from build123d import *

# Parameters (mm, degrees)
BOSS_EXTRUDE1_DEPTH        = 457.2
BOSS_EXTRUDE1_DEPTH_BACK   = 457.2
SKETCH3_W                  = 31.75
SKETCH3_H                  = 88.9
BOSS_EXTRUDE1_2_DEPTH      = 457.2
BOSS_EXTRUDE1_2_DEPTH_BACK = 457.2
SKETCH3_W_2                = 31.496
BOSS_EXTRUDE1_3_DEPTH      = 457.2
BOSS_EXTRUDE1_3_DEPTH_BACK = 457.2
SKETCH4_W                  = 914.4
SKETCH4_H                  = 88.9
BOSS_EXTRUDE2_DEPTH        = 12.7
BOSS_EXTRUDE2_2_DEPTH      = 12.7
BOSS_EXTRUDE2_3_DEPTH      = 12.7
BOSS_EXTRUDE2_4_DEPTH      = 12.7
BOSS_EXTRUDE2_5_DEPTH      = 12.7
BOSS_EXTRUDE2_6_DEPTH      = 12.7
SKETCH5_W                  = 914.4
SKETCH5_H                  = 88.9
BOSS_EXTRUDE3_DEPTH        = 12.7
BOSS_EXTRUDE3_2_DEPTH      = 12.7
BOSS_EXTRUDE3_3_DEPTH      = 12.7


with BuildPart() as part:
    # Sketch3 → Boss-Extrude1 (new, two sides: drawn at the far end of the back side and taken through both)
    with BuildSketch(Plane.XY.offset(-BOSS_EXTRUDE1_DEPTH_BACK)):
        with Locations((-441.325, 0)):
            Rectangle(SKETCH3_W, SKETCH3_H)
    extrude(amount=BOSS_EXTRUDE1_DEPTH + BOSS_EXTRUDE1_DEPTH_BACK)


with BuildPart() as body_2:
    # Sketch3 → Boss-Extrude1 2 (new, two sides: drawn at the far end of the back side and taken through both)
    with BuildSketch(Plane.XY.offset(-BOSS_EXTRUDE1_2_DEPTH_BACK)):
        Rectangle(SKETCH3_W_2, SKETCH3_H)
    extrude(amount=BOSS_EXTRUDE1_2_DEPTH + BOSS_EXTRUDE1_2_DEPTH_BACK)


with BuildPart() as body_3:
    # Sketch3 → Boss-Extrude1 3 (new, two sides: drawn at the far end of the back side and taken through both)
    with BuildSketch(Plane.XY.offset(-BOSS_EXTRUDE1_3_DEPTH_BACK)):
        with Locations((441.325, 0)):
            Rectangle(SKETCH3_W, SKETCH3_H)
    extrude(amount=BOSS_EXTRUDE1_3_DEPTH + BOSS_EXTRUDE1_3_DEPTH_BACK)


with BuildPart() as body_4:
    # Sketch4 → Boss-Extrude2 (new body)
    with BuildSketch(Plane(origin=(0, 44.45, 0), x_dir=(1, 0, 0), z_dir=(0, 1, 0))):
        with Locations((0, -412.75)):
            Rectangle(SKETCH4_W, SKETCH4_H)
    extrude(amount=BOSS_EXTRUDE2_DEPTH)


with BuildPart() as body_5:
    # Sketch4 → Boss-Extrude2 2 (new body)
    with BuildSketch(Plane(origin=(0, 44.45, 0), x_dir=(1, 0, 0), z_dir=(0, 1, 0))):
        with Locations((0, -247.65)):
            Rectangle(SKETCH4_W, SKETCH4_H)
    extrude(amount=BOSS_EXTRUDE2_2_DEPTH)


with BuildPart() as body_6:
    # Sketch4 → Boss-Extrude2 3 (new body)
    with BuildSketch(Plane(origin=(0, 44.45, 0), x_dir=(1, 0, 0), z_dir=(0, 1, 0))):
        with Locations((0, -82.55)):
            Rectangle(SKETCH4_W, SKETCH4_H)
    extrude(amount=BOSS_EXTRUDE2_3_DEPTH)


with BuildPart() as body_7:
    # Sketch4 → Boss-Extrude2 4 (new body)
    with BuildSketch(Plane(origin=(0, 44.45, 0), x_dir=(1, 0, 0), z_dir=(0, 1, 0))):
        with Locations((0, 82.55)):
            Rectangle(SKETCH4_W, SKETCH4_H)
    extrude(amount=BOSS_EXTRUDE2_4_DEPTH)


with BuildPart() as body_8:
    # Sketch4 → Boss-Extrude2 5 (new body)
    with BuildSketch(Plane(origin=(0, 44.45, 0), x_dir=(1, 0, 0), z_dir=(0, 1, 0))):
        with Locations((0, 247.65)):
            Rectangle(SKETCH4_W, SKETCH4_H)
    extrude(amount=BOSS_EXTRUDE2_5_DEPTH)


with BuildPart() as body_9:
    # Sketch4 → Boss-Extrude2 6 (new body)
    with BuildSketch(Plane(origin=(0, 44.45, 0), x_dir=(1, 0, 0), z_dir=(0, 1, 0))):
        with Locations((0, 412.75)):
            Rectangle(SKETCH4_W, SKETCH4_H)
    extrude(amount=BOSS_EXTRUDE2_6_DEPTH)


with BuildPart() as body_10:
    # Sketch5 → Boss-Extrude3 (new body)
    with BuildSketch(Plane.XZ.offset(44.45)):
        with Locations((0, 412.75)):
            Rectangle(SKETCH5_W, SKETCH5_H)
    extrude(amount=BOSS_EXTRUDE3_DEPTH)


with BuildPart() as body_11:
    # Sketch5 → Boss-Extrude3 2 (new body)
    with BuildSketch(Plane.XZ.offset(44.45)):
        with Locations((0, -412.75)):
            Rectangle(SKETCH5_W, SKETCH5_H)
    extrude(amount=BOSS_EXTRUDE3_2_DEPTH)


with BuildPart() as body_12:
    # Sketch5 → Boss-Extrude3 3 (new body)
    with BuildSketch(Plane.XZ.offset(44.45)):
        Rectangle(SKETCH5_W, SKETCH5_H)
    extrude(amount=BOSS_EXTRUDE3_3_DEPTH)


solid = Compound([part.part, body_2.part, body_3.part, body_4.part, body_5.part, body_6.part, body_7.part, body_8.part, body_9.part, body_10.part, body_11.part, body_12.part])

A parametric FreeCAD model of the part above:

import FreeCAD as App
import Part
import Sketcher
from FreeCAD import Vector
Q = App.Units.Quantity


def add_polygon(sketch, points):
    """Adds a closed chain of lines whose ends are joined by coincident constraints."""
    first, n = sketch.GeometryCount, len(points)
    for a, b in zip(points, points[1:] + points[:1]):
        sketch.addGeometry(Part.LineSegment(App.Vector(*a, 0), App.Vector(*b, 0)), False)
    for i in range(n):
        sketch.addConstraint(Sketcher.Constraint("Coincident", first + i, 2, first + (i + 1) % n, 1))

doc = App.newDocument("Part")
body = doc.addObject("PartDesign::Body", "Body")

# Sketch on XY plane
sketch1 = doc.addObject("Sketcher::SketchObject", "Sketch")
body.addObject(sketch1)
sketch1.AttachmentSupport = (doc.XY_Plane, [""])
sketch1.MapMode = "FlatFace"
add_polygon(sketch1, [(-457.2, 44.45), (-457.2, -44.45), (-425.45, -44.45), (-425.45, 44.45)])  # lines 0-3
sketch1.addConstraint([
    Sketcher.Constraint("Vertical", 0),
    Sketcher.Constraint("Horizontal", 1),
    Sketcher.Constraint("Vertical", 2),
    Sketcher.Constraint("Horizontal", 3),
    Sketcher.Constraint("DistanceY", 0, 2, 0, 1, Q("3.5 in")),
    Sketcher.Constraint("DistanceX", 0, 2, -1, 1, Q("18 in")),
    Sketcher.Constraint("DistanceX", 1, 1, 1, 2, Q("1.25 in")),
    Sketcher.Constraint("DistanceY", 0, 2, -1, 1, Q("1.75 in")),
])
pad1 = doc.addObject("PartDesign::Pad", "Pad")
body.addObject(pad1)
pad1.Profile = sketch1
pad1.Type = "TwoLengths"
pad1.Length = Q("18 in")
pad1.Length2 = Q("18 in")
body2 = doc.addObject("PartDesign::Body", "Body001")

# Sketch on XY plane
sketch2 = doc.addObject("Sketcher::SketchObject", "Sketch001")
body2.addObject(sketch2)
sketch2.AttachmentSupport = (doc.getObject("XY_Plane001"), [""])
sketch2.MapMode = "FlatFace"
add_polygon(sketch2, [(-15.748, 44.45), (-15.748, -44.45), (15.748, -44.45), (15.748, 44.45)])  # lines 0-3
sketch2.addConstraint([
    Sketcher.Constraint("Vertical", 0),
    Sketcher.Constraint("Horizontal", 1),
    Sketcher.Constraint("Vertical", 2),
    Sketcher.Constraint("Horizontal", 3),
    Sketcher.Constraint("Symmetric", 0, 2, 2, 2, -1, 1),
    Sketcher.Constraint("DistanceY", 0, 2, 0, 1, Q("3.5 in")),
    Sketcher.Constraint("DistanceX", 1, 1, 1, 2, Q("1.24 in")),
])
pad2 = doc.addObject("PartDesign::Pad", "Pad001")
body2.addObject(pad2)
pad2.Profile = sketch2
pad2.Type = "TwoLengths"
pad2.Length = Q("18 in")
pad2.Length2 = Q("18 in")
body3 = doc.addObject("PartDesign::Body", "Body002")

# Sketch on XY plane
sketch3 = doc.addObject("Sketcher::SketchObject", "Sketch002")
body3.addObject(sketch3)
sketch3.AttachmentSupport = (doc.getObject("XY_Plane002"), [""])
sketch3.MapMode = "FlatFace"
add_polygon(sketch3, [(425.45, 44.45), (425.45, -44.45), (457.2, -44.45), (457.2, 44.45)])  # lines 0-3
sketch3.addConstraint([
    Sketcher.Constraint("Vertical", 0),
    Sketcher.Constraint("Horizontal", 1),
    Sketcher.Constraint("Vertical", 2),
    Sketcher.Constraint("Horizontal", 3),
    Sketcher.Constraint("DistanceY", 0, 2, 0, 1, Q("3.5 in")),
    Sketcher.Constraint("DistanceX", -1, 1, 1, 2, Q("18 in")),
    Sketcher.Constraint("DistanceX", 1, 1, 1, 2, Q("1.25 in")),
    Sketcher.Constraint("DistanceY", 0, 2, -1, 1, Q("1.75 in")),
])
pad3 = doc.addObject("PartDesign::Pad", "Pad002")
body3.addObject(pad3)
pad3.Profile = sketch3
pad3.Type = "TwoLengths"
pad3.Length = Q("18 in")
pad3.Length2 = Q("18 in")
body4 = doc.addObject("PartDesign::Body", "Body003")

# Sketch on XZ plane
sketch4 = doc.addObject("Sketcher::SketchObject", "Sketch003")
body4.addObject(sketch4)
sketch4.AttachmentSupport = (doc.getObject("XZ_Plane003"), [""])
sketch4.MapMode = "FlatFace"
sketch4.AttachmentOffset = App.Placement(Vector(0, 0, -1.75 * 25.4), App.Rotation())
add_polygon(sketch4, [(-457.2, 368.3), (-457.2, 457.2), (457.2, 457.2), (457.2, 368.3)])  # lines 0-3
sketch4.addConstraint([
    Sketcher.Constraint("Vertical", 0),
    Sketcher.Constraint("Horizontal", 1),
    Sketcher.Constraint("Vertical", 2),
    Sketcher.Constraint("Horizontal", 3),
    Sketcher.Constraint("DistanceX", 1, 1, 1, 2, Q("36 in")),
    Sketcher.Constraint("DistanceY", 0, 1, 0, 2, Q("3.5 in")),
    Sketcher.Constraint("DistanceX", 0, 2, -1, 1, Q("18 in")),
    Sketcher.Constraint("DistanceY", -1, 1, 0, 2, Q("18 in")),
])
pad4 = doc.addObject("PartDesign::Pad", "Pad003")
body4.addObject(pad4)
pad4.Profile = sketch4
pad4.Length = Q("0.5 in")
pad4.Reversed = True
body5 = doc.addObject("PartDesign::Body", "Body004")

# Sketch on XZ plane
sketch5 = doc.addObject("Sketcher::SketchObject", "Sketch004")
body5.addObject(sketch5)
sketch5.AttachmentSupport = (doc.getObject("XZ_Plane004"), [""])
sketch5.MapMode = "FlatFace"
sketch5.AttachmentOffset = App.Placement(Vector(0, 0, -1.75 * 25.4), App.Rotation())
add_polygon(sketch5, [(-457.2, 203.2), (-457.2, 292.1), (457.2, 292.1), (457.2, 203.2)])  # lines 0-3
sketch5.addConstraint([
    Sketcher.Constraint("Vertical", 0),
    Sketcher.Constraint("Horizontal", 1),
    Sketcher.Constraint("Vertical", 2),
    Sketcher.Constraint("Horizontal", 3),
    Sketcher.Constraint("DistanceX", 1, 1, 1, 2, Q("36 in")),
    Sketcher.Constraint("DistanceY", 0, 1, 0, 2, Q("3.5 in")),
    Sketcher.Constraint("DistanceX", 0, 2, -1, 1, Q("18 in")),
    Sketcher.Constraint("DistanceY", -1, 1, 2, 2, Q("8 in")),
])
pad5 = doc.addObject("PartDesign::Pad", "Pad004")
body5.addObject(pad5)
pad5.Profile = sketch5
pad5.Length = Q("0.5 in")
pad5.Reversed = True
body6 = doc.addObject("PartDesign::Body", "Body005")

# Sketch on XZ plane
sketch6 = doc.addObject("Sketcher::SketchObject", "Sketch005")
body6.addObject(sketch6)
sketch6.AttachmentSupport = (doc.getObject("XZ_Plane005"), [""])
sketch6.MapMode = "FlatFace"
sketch6.AttachmentOffset = App.Placement(Vector(0, 0, -1.75 * 25.4), App.Rotation())
add_polygon(sketch6, [(-457.2, 38.1), (-457.2, 127), (457.2, 127), (457.2, 38.1)])  # lines 0-3
sketch6.addConstraint([
    Sketcher.Constraint("Vertical", 0),
    Sketcher.Constraint("Horizontal", 1),
    Sketcher.Constraint("Vertical", 2),
    Sketcher.Constraint("Horizontal", 3),
    Sketcher.Constraint("DistanceX", 1, 1, 1, 2, Q("36 in")),
    Sketcher.Constraint("DistanceY", 0, 1, 0, 2, Q("3.5 in")),
    Sketcher.Constraint("DistanceX", 0, 2, -1, 1, Q("18 in")),
    Sketcher.Constraint("DistanceY", -1, 1, 0, 2, Q("5 in")),
])
pad6 = doc.addObject("PartDesign::Pad", "Pad005")
body6.addObject(pad6)
pad6.Profile = sketch6
pad6.Length = Q("0.5 in")
pad6.Reversed = True
body7 = doc.addObject("PartDesign::Body", "Body006")

# Sketch on XZ plane
sketch7 = doc.addObject("Sketcher::SketchObject", "Sketch006")
body7.addObject(sketch7)
sketch7.AttachmentSupport = (doc.getObject("XZ_Plane006"), [""])
sketch7.MapMode = "FlatFace"
sketch7.AttachmentOffset = App.Placement(Vector(0, 0, -1.75 * 25.4), App.Rotation())
add_polygon(sketch7, [(-457.2, -127), (-457.2, -38.1), (457.2, -38.1), (457.2, -127)])  # lines 0-3
sketch7.addConstraint([
    Sketcher.Constraint("Vertical", 0),
    Sketcher.Constraint("Horizontal", 1),
    Sketcher.Constraint("Vertical", 2),
    Sketcher.Constraint("Horizontal", 3),
    Sketcher.Constraint("DistanceX", 1, 1, 1, 2, Q("36 in")),
    Sketcher.Constraint("DistanceY", 0, 1, 0, 2, Q("3.5 in")),
    Sketcher.Constraint("DistanceX", 0, 2, -1, 1, Q("18 in")),
    Sketcher.Constraint("DistanceY", 2, 2, -1, 1, Q("5 in")),
])
pad7 = doc.addObject("PartDesign::Pad", "Pad006")
body7.addObject(pad7)
pad7.Profile = sketch7
pad7.Length = Q("0.5 in")
pad7.Reversed = True
body8 = doc.addObject("PartDesign::Body", "Body007")

# Sketch on XZ plane
sketch8 = doc.addObject("Sketcher::SketchObject", "Sketch007")
body8.addObject(sketch8)
sketch8.AttachmentSupport = (doc.getObject("XZ_Plane007"), [""])
sketch8.MapMode = "FlatFace"
sketch8.AttachmentOffset = App.Placement(Vector(0, 0, -1.75 * 25.4), App.Rotation())
add_polygon(sketch8, [(-457.2, -292.1), (-457.2, -203.2), (457.2, -203.2), (457.2, -292.1)])  # lines 0-3
sketch8.addConstraint([
    Sketcher.Constraint("Vertical", 0),
    Sketcher.Constraint("Horizontal", 1),
    Sketcher.Constraint("Vertical", 2),
    Sketcher.Constraint("Horizontal", 3),
    Sketcher.Constraint("DistanceX", 1, 1, 1, 2, Q("36 in")),
    Sketcher.Constraint("DistanceY", 0, 1, 0, 2, Q("3.5 in")),
    Sketcher.Constraint("DistanceX", 0, 2, -1, 1, Q("18 in")),
    Sketcher.Constraint("DistanceY", 0, 2, -1, 1, Q("8 in")),
])
pad8 = doc.addObject("PartDesign::Pad", "Pad007")
body8.addObject(pad8)
pad8.Profile = sketch8
pad8.Length = Q("0.5 in")
pad8.Reversed = True
body9 = doc.addObject("PartDesign::Body", "Body008")

# Sketch on XZ plane
sketch9 = doc.addObject("Sketcher::SketchObject", "Sketch008")
body9.addObject(sketch9)
sketch9.AttachmentSupport = (doc.getObject("XZ_Plane008"), [""])
sketch9.MapMode = "FlatFace"
sketch9.AttachmentOffset = App.Placement(Vector(0, 0, -1.75 * 25.4), App.Rotation())
add_polygon(sketch9, [(-457.2, -457.2), (-457.2, -368.3), (457.2, -368.3), (457.2, -457.2)])  # lines 0-3
sketch9.addConstraint([
    Sketcher.Constraint("Vertical", 0),
    Sketcher.Constraint("Horizontal", 1),
    Sketcher.Constraint("Vertical", 2),
    Sketcher.Constraint("Horizontal", 3),
    Sketcher.Constraint("DistanceX", 1, 1, 1, 2, Q("36 in")),
    Sketcher.Constraint("DistanceY", 0, 1, 0, 2, Q("3.5 in")),
    Sketcher.Constraint("DistanceX", 0, 2, -1, 1, Q("18 in")),
    Sketcher.Constraint("DistanceY", 2, 2, -1, 1, Q("18 in")),
])
pad9 = doc.addObject("PartDesign::Pad", "Pad008")
body9.addObject(pad9)
pad9.Profile = sketch9
pad9.Length = Q("0.5 in")
pad9.Reversed = True
body10 = doc.addObject("PartDesign::Body", "Body009")

# Sketch on XZ plane
sketch10 = doc.addObject("Sketcher::SketchObject", "Sketch009")
body10.addObject(sketch10)
sketch10.AttachmentSupport = (doc.getObject("XZ_Plane009"), [""])
sketch10.MapMode = "FlatFace"
sketch10.AttachmentOffset = App.Placement(Vector(0, 0, 1.75 * 25.4), App.Rotation())
add_polygon(sketch10, [(-457.2, 457.2), (-457.2, 368.3), (457.2, 368.3), (457.2, 457.2)])  # lines 0-3
sketch10.addConstraint([
    Sketcher.Constraint("Vertical", 0),
    Sketcher.Constraint("Horizontal", 1),
    Sketcher.Constraint("Vertical", 2),
    Sketcher.Constraint("Horizontal", 3),
    Sketcher.Constraint("DistanceX", 1, 1, 1, 2, Q("36 in")),
    Sketcher.Constraint("DistanceY", 0, 2, 0, 1, Q("3.5 in")),
    Sketcher.Constraint("DistanceX", 0, 2, -1, 1, Q("18 in")),
    Sketcher.Constraint("DistanceY", -1, 1, 2, 2, Q("18 in")),
])
pad10 = doc.addObject("PartDesign::Pad", "Pad009")
body10.addObject(pad10)
pad10.Profile = sketch10
pad10.Length = Q("0.5 in")
body11 = doc.addObject("PartDesign::Body", "Body010")

# Sketch on XZ plane
sketch11 = doc.addObject("Sketcher::SketchObject", "Sketch010")
body11.addObject(sketch11)
sketch11.AttachmentSupport = (doc.getObject("XZ_Plane010"), [""])
sketch11.MapMode = "FlatFace"
sketch11.AttachmentOffset = App.Placement(Vector(0, 0, 1.75 * 25.4), App.Rotation())
add_polygon(sketch11, [(-457.2, -368.3), (-457.2, -457.2), (457.2, -457.2), (457.2, -368.3)])  # lines 0-3
sketch11.addConstraint([
    Sketcher.Constraint("Vertical", 0),
    Sketcher.Constraint("Horizontal", 1),
    Sketcher.Constraint("Vertical", 2),
    Sketcher.Constraint("Horizontal", 3),
    Sketcher.Constraint("DistanceX", 1, 1, 1, 2, Q("36 in")),
    Sketcher.Constraint("DistanceY", 0, 2, 0, 1, Q("3.5 in")),
    Sketcher.Constraint("DistanceX", 0, 2, -1, 1, Q("18 in")),
    Sketcher.Constraint("DistanceY", 0, 2, -1, 1, Q("18 in")),
])
pad11 = doc.addObject("PartDesign::Pad", "Pad010")
body11.addObject(pad11)
pad11.Profile = sketch11
pad11.Length = Q("0.5 in")
body12 = doc.addObject("PartDesign::Body", "Body011")

# Sketch on XZ plane
sketch12 = doc.addObject("Sketcher::SketchObject", "Sketch011")
body12.addObject(sketch12)
sketch12.AttachmentSupport = (doc.getObject("XZ_Plane011"), [""])
sketch12.MapMode = "FlatFace"
sketch12.AttachmentOffset = App.Placement(Vector(0, 0, 1.75 * 25.4), App.Rotation())
add_polygon(sketch12, [(-457.2, 44.45), (-457.2, -44.45), (457.2, -44.45), (457.2, 44.45)])  # lines 0-3
sketch12.addConstraint([
    Sketcher.Constraint("Vertical", 0),
    Sketcher.Constraint("Horizontal", 1),
    Sketcher.Constraint("Vertical", 2),
    Sketcher.Constraint("Horizontal", 3),
    Sketcher.Constraint("Symmetric", 0, 2, 2, 2, -1, 1),
    Sketcher.Constraint("DistanceX", 1, 1, 1, 2, Q("36 in")),
    Sketcher.Constraint("DistanceY", 0, 2, 0, 1, Q("3.5 in")),
])
pad12 = doc.addObject("PartDesign::Pad", "Pad011")
body12.addObject(pad12)
pad12.Profile = sketch12
pad12.Length = Q("0.5 in")

doc.recompute()
